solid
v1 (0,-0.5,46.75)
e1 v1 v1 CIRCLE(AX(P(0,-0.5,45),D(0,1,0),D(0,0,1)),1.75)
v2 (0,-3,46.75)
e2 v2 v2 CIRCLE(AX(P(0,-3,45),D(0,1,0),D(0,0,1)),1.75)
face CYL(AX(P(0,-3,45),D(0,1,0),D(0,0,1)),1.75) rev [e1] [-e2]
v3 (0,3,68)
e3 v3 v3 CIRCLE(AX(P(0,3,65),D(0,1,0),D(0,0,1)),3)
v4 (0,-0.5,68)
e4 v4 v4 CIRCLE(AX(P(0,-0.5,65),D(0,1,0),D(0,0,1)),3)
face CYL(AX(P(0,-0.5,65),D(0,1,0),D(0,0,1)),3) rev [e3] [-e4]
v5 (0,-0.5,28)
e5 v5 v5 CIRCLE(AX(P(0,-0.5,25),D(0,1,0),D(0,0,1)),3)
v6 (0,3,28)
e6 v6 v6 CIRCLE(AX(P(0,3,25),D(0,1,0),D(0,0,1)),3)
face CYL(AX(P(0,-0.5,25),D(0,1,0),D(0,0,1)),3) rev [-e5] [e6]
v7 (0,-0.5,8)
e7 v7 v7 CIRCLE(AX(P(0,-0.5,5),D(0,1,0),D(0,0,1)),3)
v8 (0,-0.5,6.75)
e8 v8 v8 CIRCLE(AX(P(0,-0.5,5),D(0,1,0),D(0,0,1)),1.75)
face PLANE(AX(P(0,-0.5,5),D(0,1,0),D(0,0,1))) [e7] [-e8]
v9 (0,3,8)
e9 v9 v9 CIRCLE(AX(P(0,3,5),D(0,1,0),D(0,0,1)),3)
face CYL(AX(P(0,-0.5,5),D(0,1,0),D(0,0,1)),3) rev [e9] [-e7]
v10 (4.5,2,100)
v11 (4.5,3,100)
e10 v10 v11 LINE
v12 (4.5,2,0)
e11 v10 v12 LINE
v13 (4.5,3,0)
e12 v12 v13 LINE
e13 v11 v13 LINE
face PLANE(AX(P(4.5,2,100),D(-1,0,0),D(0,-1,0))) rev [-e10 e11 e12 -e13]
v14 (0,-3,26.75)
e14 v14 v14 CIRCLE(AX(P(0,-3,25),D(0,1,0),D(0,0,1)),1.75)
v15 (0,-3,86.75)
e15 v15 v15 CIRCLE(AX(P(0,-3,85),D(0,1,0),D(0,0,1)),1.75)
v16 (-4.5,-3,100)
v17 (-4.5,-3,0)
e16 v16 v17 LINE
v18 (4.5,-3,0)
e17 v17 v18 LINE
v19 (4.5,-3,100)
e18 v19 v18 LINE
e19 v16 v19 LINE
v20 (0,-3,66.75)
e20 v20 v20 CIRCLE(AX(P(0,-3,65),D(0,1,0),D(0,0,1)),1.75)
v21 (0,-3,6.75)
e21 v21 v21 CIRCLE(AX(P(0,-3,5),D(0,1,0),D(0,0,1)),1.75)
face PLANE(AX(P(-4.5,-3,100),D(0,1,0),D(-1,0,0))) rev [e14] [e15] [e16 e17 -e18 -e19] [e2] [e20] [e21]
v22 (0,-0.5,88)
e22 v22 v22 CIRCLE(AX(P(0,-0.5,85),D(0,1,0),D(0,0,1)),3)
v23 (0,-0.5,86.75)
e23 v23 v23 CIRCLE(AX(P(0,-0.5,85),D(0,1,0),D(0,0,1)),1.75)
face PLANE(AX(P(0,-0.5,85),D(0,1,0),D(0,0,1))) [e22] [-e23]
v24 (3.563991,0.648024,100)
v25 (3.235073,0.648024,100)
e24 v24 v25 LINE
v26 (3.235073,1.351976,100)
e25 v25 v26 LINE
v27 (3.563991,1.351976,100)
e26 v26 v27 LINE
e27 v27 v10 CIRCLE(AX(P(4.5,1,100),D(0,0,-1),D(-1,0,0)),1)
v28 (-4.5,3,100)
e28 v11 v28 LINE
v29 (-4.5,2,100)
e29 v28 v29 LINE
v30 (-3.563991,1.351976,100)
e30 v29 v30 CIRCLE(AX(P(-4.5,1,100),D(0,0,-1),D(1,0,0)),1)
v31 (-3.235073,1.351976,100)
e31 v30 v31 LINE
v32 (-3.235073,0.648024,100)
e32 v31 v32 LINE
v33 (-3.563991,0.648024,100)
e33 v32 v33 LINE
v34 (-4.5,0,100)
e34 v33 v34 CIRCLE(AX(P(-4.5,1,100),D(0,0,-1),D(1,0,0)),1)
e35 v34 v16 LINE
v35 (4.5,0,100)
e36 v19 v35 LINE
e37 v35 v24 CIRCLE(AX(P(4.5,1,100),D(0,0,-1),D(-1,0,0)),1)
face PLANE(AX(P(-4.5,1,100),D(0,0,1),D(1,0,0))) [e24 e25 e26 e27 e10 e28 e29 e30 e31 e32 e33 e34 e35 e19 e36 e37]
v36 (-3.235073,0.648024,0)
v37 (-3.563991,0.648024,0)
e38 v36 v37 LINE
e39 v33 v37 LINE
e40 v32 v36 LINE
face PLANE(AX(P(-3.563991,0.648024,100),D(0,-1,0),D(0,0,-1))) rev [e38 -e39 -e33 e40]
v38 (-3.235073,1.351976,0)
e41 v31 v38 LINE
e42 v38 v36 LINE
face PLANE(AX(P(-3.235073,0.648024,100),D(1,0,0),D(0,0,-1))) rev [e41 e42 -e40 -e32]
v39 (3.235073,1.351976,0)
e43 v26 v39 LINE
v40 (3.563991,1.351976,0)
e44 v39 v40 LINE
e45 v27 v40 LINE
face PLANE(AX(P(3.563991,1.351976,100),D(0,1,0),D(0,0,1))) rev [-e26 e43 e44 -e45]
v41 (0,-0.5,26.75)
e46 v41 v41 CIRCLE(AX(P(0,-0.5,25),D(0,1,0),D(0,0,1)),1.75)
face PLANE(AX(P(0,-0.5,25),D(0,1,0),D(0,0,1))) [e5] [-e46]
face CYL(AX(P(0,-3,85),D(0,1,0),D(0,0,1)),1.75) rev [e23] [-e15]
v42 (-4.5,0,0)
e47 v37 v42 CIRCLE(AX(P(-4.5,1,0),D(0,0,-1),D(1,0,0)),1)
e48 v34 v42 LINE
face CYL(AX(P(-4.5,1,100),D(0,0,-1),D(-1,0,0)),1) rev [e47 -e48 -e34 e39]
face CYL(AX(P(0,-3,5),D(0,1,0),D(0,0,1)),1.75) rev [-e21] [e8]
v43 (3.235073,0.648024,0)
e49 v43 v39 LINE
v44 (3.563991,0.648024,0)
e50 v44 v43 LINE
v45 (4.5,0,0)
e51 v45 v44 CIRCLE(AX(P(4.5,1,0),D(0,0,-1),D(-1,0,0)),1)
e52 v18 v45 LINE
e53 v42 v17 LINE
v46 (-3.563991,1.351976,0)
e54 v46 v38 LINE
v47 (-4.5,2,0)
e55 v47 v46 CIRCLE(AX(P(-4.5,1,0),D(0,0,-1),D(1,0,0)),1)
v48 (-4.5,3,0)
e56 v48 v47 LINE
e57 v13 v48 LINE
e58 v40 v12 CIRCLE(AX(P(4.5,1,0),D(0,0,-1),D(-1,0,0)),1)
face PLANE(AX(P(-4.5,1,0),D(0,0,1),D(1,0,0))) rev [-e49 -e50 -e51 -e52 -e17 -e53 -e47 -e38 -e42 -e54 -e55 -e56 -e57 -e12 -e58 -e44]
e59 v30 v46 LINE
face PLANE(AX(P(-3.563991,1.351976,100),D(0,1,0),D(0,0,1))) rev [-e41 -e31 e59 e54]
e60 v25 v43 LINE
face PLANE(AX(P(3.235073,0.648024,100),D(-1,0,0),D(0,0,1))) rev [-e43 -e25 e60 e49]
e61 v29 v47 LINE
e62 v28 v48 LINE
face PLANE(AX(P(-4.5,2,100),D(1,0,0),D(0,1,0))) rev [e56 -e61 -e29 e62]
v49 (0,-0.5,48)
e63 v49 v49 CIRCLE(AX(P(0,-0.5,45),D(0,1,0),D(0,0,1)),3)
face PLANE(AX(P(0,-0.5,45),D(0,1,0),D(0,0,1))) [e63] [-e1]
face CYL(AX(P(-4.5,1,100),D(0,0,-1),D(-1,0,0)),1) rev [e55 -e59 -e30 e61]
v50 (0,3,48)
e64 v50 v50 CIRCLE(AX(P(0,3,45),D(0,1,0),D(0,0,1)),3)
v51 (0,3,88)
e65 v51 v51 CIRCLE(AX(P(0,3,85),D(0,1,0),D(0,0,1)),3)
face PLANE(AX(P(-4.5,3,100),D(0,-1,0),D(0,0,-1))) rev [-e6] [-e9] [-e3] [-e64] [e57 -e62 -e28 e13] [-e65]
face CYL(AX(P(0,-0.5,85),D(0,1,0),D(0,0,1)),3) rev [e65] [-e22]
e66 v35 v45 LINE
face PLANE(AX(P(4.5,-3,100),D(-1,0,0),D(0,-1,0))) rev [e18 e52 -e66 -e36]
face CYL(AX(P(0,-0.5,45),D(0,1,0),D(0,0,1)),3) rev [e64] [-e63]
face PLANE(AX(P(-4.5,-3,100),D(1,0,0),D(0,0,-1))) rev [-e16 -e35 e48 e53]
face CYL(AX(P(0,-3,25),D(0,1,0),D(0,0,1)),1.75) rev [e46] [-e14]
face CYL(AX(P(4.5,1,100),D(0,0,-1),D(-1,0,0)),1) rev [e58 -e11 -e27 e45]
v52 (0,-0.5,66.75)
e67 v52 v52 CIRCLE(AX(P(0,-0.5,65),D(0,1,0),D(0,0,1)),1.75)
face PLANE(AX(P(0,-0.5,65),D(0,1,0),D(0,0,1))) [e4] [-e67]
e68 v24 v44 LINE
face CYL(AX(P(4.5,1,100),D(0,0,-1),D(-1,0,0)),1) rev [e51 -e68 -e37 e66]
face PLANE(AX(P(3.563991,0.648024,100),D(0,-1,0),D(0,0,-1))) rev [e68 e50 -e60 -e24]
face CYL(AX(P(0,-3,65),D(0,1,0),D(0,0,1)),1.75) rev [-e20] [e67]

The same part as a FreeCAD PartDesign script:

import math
import FreeCAD as App
import Part
import Sketcher

V = App.Vector

doc = App.newDocument("Part")
body = doc.addObject("PartDesign::Body", "Body")

sketch1 = body.newObject("Sketcher::SketchObject", "Sketch")
sketch1.AttachmentSupport = (doc.getObject("XY_Plane"), [""])
sketch1.MapMode = "FlatFace"
sketch1.addGeometry(Part.LineSegment(V(-4.5, -3, 0), V(4.5, -3, 0)), False)
sketch1.addGeometry(Part.LineSegment(V(4.5, -3, 0), V(4.5, 0, 0)), False)
sketch1.addGeometry(Part.ArcOfCircle(Part.Circle(V(4.5, 1, 0), V(0, 0, 1), 1), math.radians(-159), math.radians(-90)), False)
sketch1.addGeometry(Part.LineSegment(V(3.56, 0.65, 0), V(3.24, 0.65, 0)), False)
sketch1.addGeometry(Part.LineSegment(V(3.24, 0.65, 0), V(3.24, 1.35, 0)), False)
sketch1.addGeometry(Part.LineSegment(V(3.24, 1.35, 0), V(3.56, 1.35, 0)), False)
sketch1.addGeometry(Part.ArcOfCircle(Part.Circle(V(4.5, 1, 0), V(0, 0, 1), 1), math.radians(90), math.radians(159)), False)
sketch1.addGeometry(Part.LineSegment(V(4.5, 2, 0), V(4.5, 3, 0)), False)
sketch1.addGeometry(Part.LineSegment(V(4.5, 3, 0), V(-4.5, 3, 0)), False)
sketch1.addGeometry(Part.LineSegment(V(-4.5, 3, 0), V(-4.5, 2, 0)), False)
sketch1.addGeometry(Part.ArcOfCircle(Part.Circle(V(-4.5, 1, 0), V(0, 0, 1), 1), math.radians(21), math.radians(90)), False)
sketch1.addGeometry(Part.LineSegment(V(-3.56, 1.35, 0), V(-3.24, 1.35, 0)), False)
sketch1.addGeometry(Part.LineSegment(V(-3.24, 1.35, 0), V(-3.24, 0.65, 0)), False)
sketch1.addGeometry(Part.LineSegment(V(-3.24, 0.65, 0), V(-3.56, 0.65, 0)), False)
sketch1.addGeometry(Part.ArcOfCircle(Part.Circle(V(-4.5, 1, 0), V(0, 0, 1), 1), math.radians(-90), math.radians(-21)), False)
sketch1.addGeometry(Part.LineSegment(V(-4.5, 0, 0), V(-4.5, -3, 0)), False)
sketch1.addConstraint(Sketcher.Constraint("Coincident", 0, 2, 1, 1))
sketch1.addConstraint(Sketcher.Constraint("Coincident", 1, 2, 2, 2))
sketch1.addConstraint(Sketcher.Constraint("Coincident", 2, 1, 3, 1))
sketch1.addConstraint(Sketcher.Constraint("Coincident", 3, 2, 4, 1))
sketch1.addConstraint(Sketcher.Constraint("Coincident", 4, 2, 5, 1))
sketch1.addConstraint(Sketcher.Constraint("Coincident", 5, 2, 6, 2))
sketch1.addConstraint(Sketcher.Constraint("Coincident", 6, 1, 7, 1))
sketch1.addConstraint(Sketcher.Constraint("Coincident", 7, 2, 8, 1))
sketch1.addConstraint(Sketcher.Constraint("Coincident", 8, 2, 9, 1))
sketch1.addConstraint(Sketcher.Constraint("Coincident", 9, 2, 10, 2))
sketch1.addConstraint(Sketcher.Constraint("Coincident", 10, 1, 11, 1))
sketch1.addConstraint(Sketcher.Constraint("Coincident", 11, 2, 12, 1))
sketch1.addConstraint(Sketcher.Constraint("Coincident", 12, 2, 13, 1))
sketch1.addConstraint(Sketcher.Constraint("Coincident", 13, 2, 14, 2))
sketch1.addConstraint(Sketcher.Constraint("Coincident", 14, 1, 15, 1))
sketch1.addConstraint(Sketcher.Constraint("Coincident", 15, 2, 0, 1))
sketch1.addConstraint(Sketcher.Constraint("Horizontal", 0))
sketch1.addConstraint(Sketcher.Constraint("Vertical", 1))
sketch1.addConstraint(Sketcher.Constraint("Horizontal", 3))
sketch1.addConstraint(Sketcher.Constraint("Vertical", 4))
sketch1.addConstraint(Sketcher.Constraint("Horizontal", 5))
sketch1.addConstraint(Sketcher.Constraint("Vertical", 7))
sketch1.addConstraint(Sketcher.Constraint("Horizontal", 8))
sketch1.addConstraint(Sketcher.Constraint("Vertical", 9))
sketch1.addConstraint(Sketcher.Constraint("Horizontal", 11))
sketch1.addConstraint(Sketcher.Constraint("Vertical", 12))
sketch1.addConstraint(Sketcher.Constraint("Horizontal", 13))
sketch1.addConstraint(Sketcher.Constraint("Vertical", 15))
sketch1.addConstraint(Sketcher.Constraint("Coincident", 6, 3, 2, 3))
sketch1.addConstraint(Sketcher.Constraint("Coincident", 14, 3, 10, 3))
sketch1.addConstraint(Sketcher.Constraint("Equal", 2, 6))
sketch1.addConstraint(Sketcher.Constraint("Equal", 6, 10))
sketch1.addConstraint(Sketcher.Constraint("Equal", 10, 14))
sketch1.addConstraint(Sketcher.Constraint("Symmetric", 0, 2, 8, 2, -1, 1))
sketch1.addConstraint(Sketcher.Constraint("Symmetric", 1, 2, 14, 1, -1, 1))
sketch1.addConstraint(Sketcher.Constraint("Symmetric", 2, 3, 10, 3, -2))
sketch1.addConstraint(Sketcher.Constraint("Symmetric", 4, 2, 11, 2, -2))
sketch1.addConstraint(Sketcher.Constraint("Horizontal", 3, 2, 12, 2))
sketch1.addConstraint(Sketcher.Constraint("Vertical", 6, 3, 0, 2))
sketch1.addConstraint(Sketcher.Constraint("Vertical", 2, 1, 5, 2))
sketch1.addConstraint(Sketcher.Constraint("Vertical", 1, 2, 6, 1))
sketch1.addConstraint(Sketcher.Constraint("Radius", 2, 1.0))
sketch1.addConstraint(Sketcher.Constraint("DistanceX", 0, 1, 0, 2, 9.0))
sketch1.addConstraint(Sketcher.Constraint("DistanceY", 1, 1, 1, 2, 3.0))
sketch1.addConstraint(Sketcher.Constraint("DistanceX", 3, 2, 3, 1, 0.328918))
sketch1.addConstraint(Sketcher.Constraint("DistanceY", 4, 1, 4, 2, 0.703953))
pad1 = body.newObject("PartDesign::Pad", "Pad")
pad1.Profile = sketch1
pad1.Length = 100

sketch2 = body.newObject("Sketcher::SketchObject", "Sketch001")
sketch2.AttachmentSupport = (doc.getObject("XZ_Plane"), [""])
sketch2.MapMode = "FlatFace"
sketch2.AttachmentOffset = App.Placement(V(0, 0, -3), App.Rotation())
sketch2.addGeometry(Part.Circle(V(0, 5, 0), V(0, 0, 1), 3), False)
sketch2.addConstraint(Sketcher.Constraint("PointOnObject", 0, 3, -2))
sketch2.addConstraint(Sketcher.Constraint("Diameter", 0, 6.0))
sketch2.addConstraint(Sketcher.Constraint("DistanceY", -1, 1, 0, 3, 5.0))
pocket1 = body.newObject("PartDesign::Pocket", "Pocket")
pocket1.Profile = sketch2
pocket1.Length = 3.5
pocket1.Reversed = True

sketch3 = body.newObject("Sketcher::SketchObject", "Sketch002")
sketch3.AttachmentSupport = (doc.getObject("XZ_Plane"), [""])
sketch3.MapMode = "FlatFace"
sketch3.AttachmentOffset = App.Placement(V(0, 0, -3), App.Rotation())
sketch3.addGeometry(Part.Circle(V(0, 5, 0), V(0, 0, 1), 1.8), False)
sketch3.addConstraint(Sketcher.Constraint("PointOnObject", 0, 3, -2))
sketch3.addConstraint(Sketcher.Constraint("Diameter", 0, 3.5))
sketch3.addConstraint(Sketcher.Constraint("DistanceY", -1, 1, 0, 3, 5.0))
pocket2 = body.newObject("PartDesign::Pocket", "Pocket001")
pocket2.Profile = sketch3
pocket2.Type = "ThroughAll"
pocket2.Reversed = True
doc.recompute()

linearpattern = body.newObject("PartDesign::LinearPattern", "LinearPattern")
linearpattern.Originals = [pocket1, pocket2]
linearpattern.Direction = (doc.getObject("Z_Axis"), [""])
linearpattern.Mode = "offset"
linearpattern.Offset = 20
linearpattern.Occurrences = 30
body.Tip = linearpattern

doc.recompute()
